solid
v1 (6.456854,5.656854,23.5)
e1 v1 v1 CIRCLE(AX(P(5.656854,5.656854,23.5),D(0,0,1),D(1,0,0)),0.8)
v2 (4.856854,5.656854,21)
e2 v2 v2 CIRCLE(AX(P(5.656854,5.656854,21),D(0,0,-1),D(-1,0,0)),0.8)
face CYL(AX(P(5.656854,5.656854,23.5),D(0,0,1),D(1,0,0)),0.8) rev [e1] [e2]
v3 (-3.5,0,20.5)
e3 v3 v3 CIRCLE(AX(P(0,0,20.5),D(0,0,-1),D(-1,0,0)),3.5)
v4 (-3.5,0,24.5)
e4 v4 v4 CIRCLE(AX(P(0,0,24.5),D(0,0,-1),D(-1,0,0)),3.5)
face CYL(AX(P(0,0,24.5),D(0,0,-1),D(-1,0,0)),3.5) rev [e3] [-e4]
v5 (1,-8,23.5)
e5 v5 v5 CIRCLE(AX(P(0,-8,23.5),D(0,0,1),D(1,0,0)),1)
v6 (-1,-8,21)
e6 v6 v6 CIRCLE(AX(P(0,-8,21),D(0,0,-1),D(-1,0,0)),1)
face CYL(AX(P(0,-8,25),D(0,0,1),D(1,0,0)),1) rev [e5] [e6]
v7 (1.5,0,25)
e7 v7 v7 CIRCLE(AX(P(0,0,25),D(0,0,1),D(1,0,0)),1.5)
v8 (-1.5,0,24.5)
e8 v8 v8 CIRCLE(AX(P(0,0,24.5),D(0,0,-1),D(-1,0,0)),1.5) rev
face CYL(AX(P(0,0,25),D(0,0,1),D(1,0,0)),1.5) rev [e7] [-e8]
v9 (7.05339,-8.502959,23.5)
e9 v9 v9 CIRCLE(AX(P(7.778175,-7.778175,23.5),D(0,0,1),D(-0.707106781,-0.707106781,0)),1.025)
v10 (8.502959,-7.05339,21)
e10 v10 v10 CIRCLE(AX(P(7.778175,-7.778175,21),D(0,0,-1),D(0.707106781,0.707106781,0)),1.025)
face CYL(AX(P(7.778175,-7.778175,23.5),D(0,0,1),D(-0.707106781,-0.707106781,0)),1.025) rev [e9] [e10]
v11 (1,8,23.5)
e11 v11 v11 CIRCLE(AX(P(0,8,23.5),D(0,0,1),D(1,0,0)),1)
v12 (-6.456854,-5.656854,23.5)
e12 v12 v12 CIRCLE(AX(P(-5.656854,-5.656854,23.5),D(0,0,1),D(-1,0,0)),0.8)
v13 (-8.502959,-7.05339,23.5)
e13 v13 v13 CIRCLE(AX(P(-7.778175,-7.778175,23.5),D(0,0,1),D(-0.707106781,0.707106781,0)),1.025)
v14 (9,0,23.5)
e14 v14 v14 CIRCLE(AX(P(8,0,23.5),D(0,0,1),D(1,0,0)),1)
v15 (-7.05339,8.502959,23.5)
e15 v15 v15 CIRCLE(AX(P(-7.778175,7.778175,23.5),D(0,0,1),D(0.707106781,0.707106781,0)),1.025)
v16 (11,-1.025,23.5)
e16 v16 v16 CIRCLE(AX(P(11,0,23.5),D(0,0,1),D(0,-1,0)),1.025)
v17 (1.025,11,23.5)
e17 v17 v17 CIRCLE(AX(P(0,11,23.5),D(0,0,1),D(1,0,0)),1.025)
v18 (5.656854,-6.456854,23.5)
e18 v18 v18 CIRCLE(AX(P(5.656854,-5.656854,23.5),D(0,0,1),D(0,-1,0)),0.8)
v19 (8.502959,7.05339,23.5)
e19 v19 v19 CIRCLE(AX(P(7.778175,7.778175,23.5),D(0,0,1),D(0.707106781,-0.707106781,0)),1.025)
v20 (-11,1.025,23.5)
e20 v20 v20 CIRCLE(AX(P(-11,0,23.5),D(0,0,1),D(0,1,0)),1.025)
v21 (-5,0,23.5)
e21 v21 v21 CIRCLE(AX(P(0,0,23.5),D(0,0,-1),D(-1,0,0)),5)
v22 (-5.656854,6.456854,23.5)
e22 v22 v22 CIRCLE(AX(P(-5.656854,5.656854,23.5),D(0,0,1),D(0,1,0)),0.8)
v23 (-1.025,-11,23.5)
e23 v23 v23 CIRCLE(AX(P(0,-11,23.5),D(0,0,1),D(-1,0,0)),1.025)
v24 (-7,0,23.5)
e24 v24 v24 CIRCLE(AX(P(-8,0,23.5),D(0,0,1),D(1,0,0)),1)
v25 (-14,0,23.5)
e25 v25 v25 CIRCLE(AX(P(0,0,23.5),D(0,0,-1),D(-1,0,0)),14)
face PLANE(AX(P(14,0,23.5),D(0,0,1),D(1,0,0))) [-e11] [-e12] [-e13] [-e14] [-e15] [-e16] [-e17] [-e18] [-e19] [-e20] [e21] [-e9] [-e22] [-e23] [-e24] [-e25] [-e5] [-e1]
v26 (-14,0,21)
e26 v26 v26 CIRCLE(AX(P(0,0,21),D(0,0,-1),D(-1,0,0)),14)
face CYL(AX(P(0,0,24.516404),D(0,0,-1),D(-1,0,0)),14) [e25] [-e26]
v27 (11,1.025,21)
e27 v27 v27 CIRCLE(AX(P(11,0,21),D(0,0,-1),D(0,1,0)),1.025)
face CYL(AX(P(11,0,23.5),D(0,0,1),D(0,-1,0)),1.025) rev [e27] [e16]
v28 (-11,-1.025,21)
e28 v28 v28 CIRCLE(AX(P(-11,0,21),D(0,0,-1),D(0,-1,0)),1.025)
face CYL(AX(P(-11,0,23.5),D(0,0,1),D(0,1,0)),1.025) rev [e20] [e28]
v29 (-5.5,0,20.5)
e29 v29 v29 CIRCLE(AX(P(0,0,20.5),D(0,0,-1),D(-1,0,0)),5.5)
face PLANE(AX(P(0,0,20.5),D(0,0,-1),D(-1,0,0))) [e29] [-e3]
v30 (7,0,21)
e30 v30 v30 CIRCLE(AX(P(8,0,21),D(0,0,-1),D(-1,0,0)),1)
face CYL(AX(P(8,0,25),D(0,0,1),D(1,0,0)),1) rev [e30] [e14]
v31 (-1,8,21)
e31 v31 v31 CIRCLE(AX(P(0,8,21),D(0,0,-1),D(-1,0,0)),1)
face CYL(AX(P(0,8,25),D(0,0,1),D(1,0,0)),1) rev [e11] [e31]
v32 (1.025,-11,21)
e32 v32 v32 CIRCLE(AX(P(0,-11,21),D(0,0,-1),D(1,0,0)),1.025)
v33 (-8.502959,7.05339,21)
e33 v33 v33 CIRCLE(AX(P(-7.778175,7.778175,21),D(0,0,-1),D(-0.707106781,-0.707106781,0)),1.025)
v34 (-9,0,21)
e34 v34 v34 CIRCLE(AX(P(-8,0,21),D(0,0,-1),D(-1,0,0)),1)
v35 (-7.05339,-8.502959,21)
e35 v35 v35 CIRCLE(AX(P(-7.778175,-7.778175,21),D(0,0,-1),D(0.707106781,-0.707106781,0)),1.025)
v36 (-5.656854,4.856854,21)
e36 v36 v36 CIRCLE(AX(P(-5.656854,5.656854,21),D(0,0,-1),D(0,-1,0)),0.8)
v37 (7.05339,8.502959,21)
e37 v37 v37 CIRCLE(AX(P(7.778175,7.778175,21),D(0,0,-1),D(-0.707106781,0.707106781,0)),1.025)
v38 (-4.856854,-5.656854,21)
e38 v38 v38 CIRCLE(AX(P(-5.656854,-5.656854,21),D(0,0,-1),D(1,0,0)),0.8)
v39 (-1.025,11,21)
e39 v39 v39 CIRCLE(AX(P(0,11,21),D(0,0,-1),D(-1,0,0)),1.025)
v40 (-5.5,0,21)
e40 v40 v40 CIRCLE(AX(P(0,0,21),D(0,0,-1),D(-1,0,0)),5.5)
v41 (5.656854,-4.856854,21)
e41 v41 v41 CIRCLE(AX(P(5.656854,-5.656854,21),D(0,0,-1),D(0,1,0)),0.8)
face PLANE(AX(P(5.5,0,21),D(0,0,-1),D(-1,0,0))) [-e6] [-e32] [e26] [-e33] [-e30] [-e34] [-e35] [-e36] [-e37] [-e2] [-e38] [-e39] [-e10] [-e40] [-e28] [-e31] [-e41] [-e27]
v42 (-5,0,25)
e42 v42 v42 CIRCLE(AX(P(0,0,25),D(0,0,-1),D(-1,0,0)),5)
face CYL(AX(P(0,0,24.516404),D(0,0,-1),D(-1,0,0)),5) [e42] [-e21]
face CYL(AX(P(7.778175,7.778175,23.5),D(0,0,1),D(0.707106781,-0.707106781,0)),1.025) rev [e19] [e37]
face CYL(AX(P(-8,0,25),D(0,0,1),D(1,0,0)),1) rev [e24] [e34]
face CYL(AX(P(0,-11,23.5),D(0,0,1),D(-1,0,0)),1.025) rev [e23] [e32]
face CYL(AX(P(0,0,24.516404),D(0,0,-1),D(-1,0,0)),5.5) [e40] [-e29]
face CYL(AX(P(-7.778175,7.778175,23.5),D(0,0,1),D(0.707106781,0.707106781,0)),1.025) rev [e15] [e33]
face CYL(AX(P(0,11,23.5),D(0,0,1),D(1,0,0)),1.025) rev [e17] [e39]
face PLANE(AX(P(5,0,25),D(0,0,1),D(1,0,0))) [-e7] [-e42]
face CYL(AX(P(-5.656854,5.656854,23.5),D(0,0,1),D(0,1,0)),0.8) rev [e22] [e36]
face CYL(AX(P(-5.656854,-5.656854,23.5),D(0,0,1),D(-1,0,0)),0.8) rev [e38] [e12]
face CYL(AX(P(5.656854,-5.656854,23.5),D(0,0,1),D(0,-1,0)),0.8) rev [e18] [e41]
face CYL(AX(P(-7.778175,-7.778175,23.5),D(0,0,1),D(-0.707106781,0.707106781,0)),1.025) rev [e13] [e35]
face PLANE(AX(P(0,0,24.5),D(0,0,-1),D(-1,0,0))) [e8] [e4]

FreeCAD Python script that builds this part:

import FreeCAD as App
import Part
import Sketcher
Q = App.Units.Quantity


def add_polygon(sketch, points):
    """Adds a closed chain of lines whose ends are joined by coincident constraints."""
    first, n = sketch.GeometryCount, len(points)
    for a, b in zip(points, points[1:] + points[:1]):
        sketch.addGeometry(Part.LineSegment(App.Vector(*a, 0), App.Vector(*b, 0)), False)
    for i in range(n):
        sketch.addConstraint(Sketcher.Constraint("Coincident", first + i, 2, first + (i + 1) % n, 1))

doc = App.newDocument("Part")
body = doc.addObject("PartDesign::Body", "Body")

# Sketch on XZ plane
sketch1 = body.newObject("Sketcher::SketchObject", "Sketch")
sketch1.AttachmentSupport = (doc.getObject("XZ_Plane"), [""])
sketch1.MapMode = "FlatFace"
add_polygon(sketch1, [(0, 25), (0, 20.5), (5.5, 20.5), (5.5, 21), (14, 21), (14, 23.5), (5, 23.5), (5, 25)])  # lines 0-7
sketch1.addConstraint([
    Sketcher.Constraint("Vertical", 0),
    Sketcher.Constraint("Horizontal", 1),
    Sketcher.Constraint("Vertical", 2),
    Sketcher.Constraint("Horizontal", 3),
    Sketcher.Constraint("Vertical", 4),
    Sketcher.Constraint("Horizontal", 5),
    Sketcher.Constraint("Vertical", 6),
    Sketcher.Constraint("Horizontal", 7),
    Sketcher.Constraint("PointOnObject", 0, 2, -2),
    Sketcher.Constraint("DistanceX", 5, 2, 5, 1, Q("9 mm")),
    Sketcher.Constraint("DistanceX", 7, 2, 7, 1, Q("5 mm")),
    Sketcher.Constraint("DistanceX", 1, 1, 1, 2, Q("5.5 mm")),
    Sketcher.Constraint("DistanceY", 0, 2, 0, 1, Q("4.5 mm")),
    Sketcher.Constraint("DistanceY", 2, 1, 2, 2, Q("0.5 mm")),
    Sketcher.Constraint("DistanceY", 4, 1, 4, 2, Q("2.5 mm")),
    Sketcher.Constraint("DistanceY", -1, 1, 2, 2, Q("21 mm")),
])
revolution = body.newObject("PartDesign::Revolution", "Revolution")
revolution.Profile = sketch1
revolution.ReferenceAxis = (sketch1, ["V_Axis"])
revolution.Angle = 360

# Sketch on XY plane
sketch2 = body.newObject("Sketcher::SketchObject", "Sketch001")
sketch2.AttachmentSupport = (doc.getObject("XY_Plane"), [""])
sketch2.MapMode = "FlatFace"
sketch2.AttachmentOffset = App.Placement(App.Vector(0, 0, 25), App.Rotation())
sketch2.addGeometry(Part.Circle(App.Vector(0, 0, 0), App.Vector(0, 0, 1), 1.5), False)
sketch2.addConstraint([
    Sketcher.Constraint("Coincident", 0, 3, -1, 1),
    Sketcher.Constraint("Diameter", 0, Q("3 mm")),
])
doc.recompute()
hole = body.newObject("PartDesign::Hole", "Hole")
hole.Profile = sketch2
hole.ThreadType = "None"
hole.Diameter = 3
hole.DepthType = "ThroughAll"

# Sketch on XY plane
sketch3 = body.newObject("Sketcher::SketchObject", "Sketch002")
sketch3.AttachmentSupport = (doc.getObject("XY_Plane"), [""])
sketch3.MapMode = "FlatFace"
sketch3.AttachmentOffset = App.Placement(App.Vector(0, 0, 23.5), App.Rotation())
sketch3.addGeometry(Part.Circle(App.Vector(0, 11, 0), App.Vector(0, 0, 1), 1), False)
sketch3.addConstraint([
    Sketcher.Constraint("PointOnObject", 0, 3, -2),
    Sketcher.Constraint("Diameter", 0, Q("2.05 mm")),
    Sketcher.Constraint("DistanceY", -1, 1, 0, 3, Q("11 mm")),
])
doc.recompute()
hole2 = body.newObject("PartDesign::Hole", "Hole001")
hole2.Profile = sketch3
hole2.ThreadType = "None"
hole2.Diameter = 2.05
hole2.DepthType = "ThroughAll"
doc.recompute()

polarpattern = body.newObject("PartDesign::PolarPattern", "PolarPattern")
polarpattern.Originals = [hole2]
polarpattern.Axis = (doc.getObject("Z_Axis"), [""])
polarpattern.Angle = 360
polarpattern.Occurrences = 8
body.Tip = polarpattern

# Sketch on XY plane
sketch4 = body.newObject("Sketcher::SketchObject", "Sketch003")
sketch4.AttachmentSupport = (doc.getObject("XY_Plane"), [""])
sketch4.MapMode = "FlatFace"
sketch4.AttachmentOffset = App.Placement(App.Vector(0, 0, 25), App.Rotation())
sketch4.addGeometry([
    Part.Circle(App.Vector(0, 8, 0), App.Vector(0, 0, 1), 1),
    Part.Circle(App.Vector(8, 0, 0), App.Vector(0, 0, 1), 1),
    Part.Circle(App.Vector(0, -8, 0), App.Vector(0, 0, 1), 1),
    Part.Circle(App.Vector(-8, 0, 0), App.Vector(0, 0, 1), 1),
], False)
sketch4.addConstraint([
    Sketcher.Constraint("Equal", 0, 1),
    Sketcher.Constraint("Equal", 1, 2),
    Sketcher.Constraint("Equal", 2, 3),
    Sketcher.Constraint("Symmetric", 0, 3, 2, 3, -1, 1),
    Sketcher.Constraint("Symmetric", 1, 3, 3, 3, -1, 1),
    Sketcher.Constraint("PointOnObject", 0, 3, -2),
    Sketcher.Constraint("PointOnObject", 1, 3, -1),
    Sketcher.Constraint("Diameter", 0, Q("2 mm")),
    Sketcher.Constraint("DistanceY", -1, 1, 0, 3, Q("8 mm")),
    Sketcher.Constraint("DistanceX", -1, 1, 1, 3, Q("8 mm")),
])
doc.recompute()
hole3 = body.newObject("PartDesign::Hole", "Hole002")
hole3.Profile = sketch4
hole3.ThreadType = "None"
hole3.Diameter = 2
hole3.DepthType = "ThroughAll"

# Sketch on XY plane
sketch5 = body.newObject("Sketcher::SketchObject", "Sketch004")
sketch5.AttachmentSupport = (doc.getObject("XY_Plane"), [""])
sketch5.MapMode = "FlatFace"
sketch5.AttachmentOffset = App.Placement(App.Vector(0, 0, 23.5), App.Rotation())
sketch5.addGeometry(Part.Circle(App.Vector(5.7, 5.7, 0), App.Vector(0, 0, 1), 0.8), False)
sketch5.addConstraint([
    Sketcher.Constraint("Diameter", 0, Q("1.6 mm")),
    Sketcher.Constraint("DistanceX", -1, 1, 0, 3, Q("5.656854 mm")),
    Sketcher.Constraint("DistanceY", -1, 1, 0, 3, Q("5.656854 mm")),
])
doc.recompute()
hole4 = body.newObject("PartDesign::Hole", "Hole003")
hole4.Profile = sketch5
hole4.ThreadType = "None"
hole4.Diameter = 1.6
hole4.DepthType = "ThroughAll"
doc.recompute()

polarpattern2 = body.newObject("PartDesign::PolarPattern", "PolarPattern001")
polarpattern2.Originals = [hole4]
polarpattern2.Axis = (doc.getObject("Z_Axis"), [""])
polarpattern2.Angle = 360
polarpattern2.Occurrences = 4
body.Tip = polarpattern2

# Sketch on XY plane
sketch6 = body.newObject("Sketcher::SketchObject", "Sketch005")
sketch6.AttachmentSupport = (doc.getObject("XY_Plane"), [""])
sketch6.MapMode = "FlatFace"
sketch6.AttachmentOffset = App.Placement(App.Vector(0, 0, 20.5), App.Rotation())
sketch6.addGeometry(Part.Circle(App.Vector(0, 0, 0), App.Vector(0, 0, 1), 3.5), False)
sketch6.addConstraint([
    Sketcher.Constraint("Coincident", 0, 3, -1, 1),
    Sketcher.Constraint("Diameter", 0, Q("7 mm")),
])
pocket1 = body.newObject("PartDesign::Pocket", "Pocket")
pocket1.Profile = sketch6
pocket1.Length = 4
pocket1.Reversed = True

doc.recompute()
